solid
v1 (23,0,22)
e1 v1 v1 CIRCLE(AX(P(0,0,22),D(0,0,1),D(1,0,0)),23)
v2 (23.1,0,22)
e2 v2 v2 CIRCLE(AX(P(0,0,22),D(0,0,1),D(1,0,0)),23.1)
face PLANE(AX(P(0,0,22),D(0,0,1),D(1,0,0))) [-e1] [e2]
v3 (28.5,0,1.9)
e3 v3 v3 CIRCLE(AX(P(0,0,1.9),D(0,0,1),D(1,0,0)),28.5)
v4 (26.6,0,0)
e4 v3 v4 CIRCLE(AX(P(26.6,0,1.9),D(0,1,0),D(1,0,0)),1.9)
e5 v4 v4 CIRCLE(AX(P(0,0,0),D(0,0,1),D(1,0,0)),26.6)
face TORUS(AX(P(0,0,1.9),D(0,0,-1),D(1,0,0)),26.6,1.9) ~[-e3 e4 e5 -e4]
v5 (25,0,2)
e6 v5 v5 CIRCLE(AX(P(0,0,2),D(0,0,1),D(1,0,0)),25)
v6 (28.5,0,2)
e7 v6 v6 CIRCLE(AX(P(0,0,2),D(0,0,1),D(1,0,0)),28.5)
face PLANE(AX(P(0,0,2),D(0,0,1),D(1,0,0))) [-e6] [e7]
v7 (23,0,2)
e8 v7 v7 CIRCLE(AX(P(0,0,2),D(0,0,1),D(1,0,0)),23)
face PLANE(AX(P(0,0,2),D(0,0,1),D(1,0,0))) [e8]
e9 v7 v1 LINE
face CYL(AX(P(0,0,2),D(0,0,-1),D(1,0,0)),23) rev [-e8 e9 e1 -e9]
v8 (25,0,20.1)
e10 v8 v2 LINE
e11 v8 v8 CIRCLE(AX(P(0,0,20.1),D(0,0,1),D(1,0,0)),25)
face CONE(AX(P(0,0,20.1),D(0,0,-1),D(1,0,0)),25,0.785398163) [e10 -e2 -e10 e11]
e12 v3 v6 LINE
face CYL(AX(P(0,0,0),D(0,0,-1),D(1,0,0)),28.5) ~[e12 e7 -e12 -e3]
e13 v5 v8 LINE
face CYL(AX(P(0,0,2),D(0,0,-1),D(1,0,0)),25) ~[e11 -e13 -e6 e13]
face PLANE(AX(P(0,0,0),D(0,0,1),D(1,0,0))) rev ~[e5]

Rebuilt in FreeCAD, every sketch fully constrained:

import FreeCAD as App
import Part
import Sketcher

V = App.Vector
Q = App.Units.Quantity


def edges_at(feature, points):
    """Names of the edges that pass closest to the given points."""
    edges = feature.Shape.Edges
    near = lambda p: min(range(len(edges)), key=lambda i: edges[i].distToShape(Part.Vertex(*p))[0])
    return sorted({f"Edge{near(p) + 1}" for p in points})

doc = App.newDocument("Part")
params = doc.addObject("Spreadsheet::Sheet", "Params")
for row, (alias, value) in enumerate([
    ("sketch1_diameter", "57 mm"),
    ("pad1_length", "2 mm"),
    ("sketch2_diameter", "50 mm"),
    ("sketch2_diameter2", "46 mm"),
    ("pad2_length", "20 mm"),
    ("chamfer_size", "1.9 mm"),
    ("fillet_radius", "1.9 mm"),
], start=1):
    params.set(f"A{row}", alias)
    params.set(f"B{row}", "=" + value)
    params.setAlias(f"B{row}", alias)

body = doc.addObject("PartDesign::Body", "Body")

sketch1 = body.newObject("Sketcher::SketchObject", "Sketch")
sketch1.AttachmentSupport = (doc.getObject("XY_Plane"), [""])
sketch1.MapMode = "FlatFace"
sketch1.addGeometry(Part.Circle(V(0, 0, 0), V(0, 0, 1), 28.5), False)
sketch1.addConstraint([
    Sketcher.Constraint("Coincident", 0, 3, -1, 1),
    Sketcher.Constraint("Diameter", 0, Q("57 mm")),
])
sketch1.setExpression("Constraints[1]", "Params.sketch1_diameter")
pad1 = body.newObject("PartDesign::Pad", "Pad")
pad1.Profile = sketch1
pad1.setExpression("Length", "Params.pad1_length")

sketch2 = body.newObject("Sketcher::SketchObject", "Sketch001")
sketch2.AttachmentSupport = (doc.getObject("XY_Plane"), [""])
sketch2.MapMode = "FlatFace"
sketch2.AttachmentOffset = App.Placement(V(0, 0, 2), App.Rotation())
sketch2.addGeometry([
    Part.Circle(V(0, 0, 0), V(0, 0, 1), 25),
    Part.Circle(V(0, 0, 0), V(0, 0, 1), 23),
], False)
sketch2.addConstraint([
    Sketcher.Constraint("Coincident", 0, 3, -1, 1),
    Sketcher.Constraint("Coincident", 1, 3, -1, 1),
    Sketcher.Constraint("Diameter", 0, Q("50 mm")),
    Sketcher.Constraint("Diameter", 1, Q("46 mm")),
])
sketch2.setExpression("Constraints[2]", "Params.sketch2_diameter")
sketch2.setExpression("Constraints[3]", "Params.sketch2_diameter2")
pad2 = body.newObject("PartDesign::Pad", "Pad001")
pad2.Profile = sketch2
pad2.setExpression("Length", "Params.pad2_length")
doc.recompute()

chamfer = body.newObject("PartDesign::Chamfer", "Chamfer")
chamfer.Base = (pad2, edges_at(pad2, [(-25, 0, 22)]))
chamfer.setExpression("Size", "Params.chamfer_size")
doc.recompute()

fillet = body.newObject("PartDesign::Fillet", "Fillet")
fillet.Base = (chamfer, edges_at(chamfer, [(-28.5, 0, 0)]))
fillet.setExpression("Radius", "Params.fillet_radius")

doc.recompute()
